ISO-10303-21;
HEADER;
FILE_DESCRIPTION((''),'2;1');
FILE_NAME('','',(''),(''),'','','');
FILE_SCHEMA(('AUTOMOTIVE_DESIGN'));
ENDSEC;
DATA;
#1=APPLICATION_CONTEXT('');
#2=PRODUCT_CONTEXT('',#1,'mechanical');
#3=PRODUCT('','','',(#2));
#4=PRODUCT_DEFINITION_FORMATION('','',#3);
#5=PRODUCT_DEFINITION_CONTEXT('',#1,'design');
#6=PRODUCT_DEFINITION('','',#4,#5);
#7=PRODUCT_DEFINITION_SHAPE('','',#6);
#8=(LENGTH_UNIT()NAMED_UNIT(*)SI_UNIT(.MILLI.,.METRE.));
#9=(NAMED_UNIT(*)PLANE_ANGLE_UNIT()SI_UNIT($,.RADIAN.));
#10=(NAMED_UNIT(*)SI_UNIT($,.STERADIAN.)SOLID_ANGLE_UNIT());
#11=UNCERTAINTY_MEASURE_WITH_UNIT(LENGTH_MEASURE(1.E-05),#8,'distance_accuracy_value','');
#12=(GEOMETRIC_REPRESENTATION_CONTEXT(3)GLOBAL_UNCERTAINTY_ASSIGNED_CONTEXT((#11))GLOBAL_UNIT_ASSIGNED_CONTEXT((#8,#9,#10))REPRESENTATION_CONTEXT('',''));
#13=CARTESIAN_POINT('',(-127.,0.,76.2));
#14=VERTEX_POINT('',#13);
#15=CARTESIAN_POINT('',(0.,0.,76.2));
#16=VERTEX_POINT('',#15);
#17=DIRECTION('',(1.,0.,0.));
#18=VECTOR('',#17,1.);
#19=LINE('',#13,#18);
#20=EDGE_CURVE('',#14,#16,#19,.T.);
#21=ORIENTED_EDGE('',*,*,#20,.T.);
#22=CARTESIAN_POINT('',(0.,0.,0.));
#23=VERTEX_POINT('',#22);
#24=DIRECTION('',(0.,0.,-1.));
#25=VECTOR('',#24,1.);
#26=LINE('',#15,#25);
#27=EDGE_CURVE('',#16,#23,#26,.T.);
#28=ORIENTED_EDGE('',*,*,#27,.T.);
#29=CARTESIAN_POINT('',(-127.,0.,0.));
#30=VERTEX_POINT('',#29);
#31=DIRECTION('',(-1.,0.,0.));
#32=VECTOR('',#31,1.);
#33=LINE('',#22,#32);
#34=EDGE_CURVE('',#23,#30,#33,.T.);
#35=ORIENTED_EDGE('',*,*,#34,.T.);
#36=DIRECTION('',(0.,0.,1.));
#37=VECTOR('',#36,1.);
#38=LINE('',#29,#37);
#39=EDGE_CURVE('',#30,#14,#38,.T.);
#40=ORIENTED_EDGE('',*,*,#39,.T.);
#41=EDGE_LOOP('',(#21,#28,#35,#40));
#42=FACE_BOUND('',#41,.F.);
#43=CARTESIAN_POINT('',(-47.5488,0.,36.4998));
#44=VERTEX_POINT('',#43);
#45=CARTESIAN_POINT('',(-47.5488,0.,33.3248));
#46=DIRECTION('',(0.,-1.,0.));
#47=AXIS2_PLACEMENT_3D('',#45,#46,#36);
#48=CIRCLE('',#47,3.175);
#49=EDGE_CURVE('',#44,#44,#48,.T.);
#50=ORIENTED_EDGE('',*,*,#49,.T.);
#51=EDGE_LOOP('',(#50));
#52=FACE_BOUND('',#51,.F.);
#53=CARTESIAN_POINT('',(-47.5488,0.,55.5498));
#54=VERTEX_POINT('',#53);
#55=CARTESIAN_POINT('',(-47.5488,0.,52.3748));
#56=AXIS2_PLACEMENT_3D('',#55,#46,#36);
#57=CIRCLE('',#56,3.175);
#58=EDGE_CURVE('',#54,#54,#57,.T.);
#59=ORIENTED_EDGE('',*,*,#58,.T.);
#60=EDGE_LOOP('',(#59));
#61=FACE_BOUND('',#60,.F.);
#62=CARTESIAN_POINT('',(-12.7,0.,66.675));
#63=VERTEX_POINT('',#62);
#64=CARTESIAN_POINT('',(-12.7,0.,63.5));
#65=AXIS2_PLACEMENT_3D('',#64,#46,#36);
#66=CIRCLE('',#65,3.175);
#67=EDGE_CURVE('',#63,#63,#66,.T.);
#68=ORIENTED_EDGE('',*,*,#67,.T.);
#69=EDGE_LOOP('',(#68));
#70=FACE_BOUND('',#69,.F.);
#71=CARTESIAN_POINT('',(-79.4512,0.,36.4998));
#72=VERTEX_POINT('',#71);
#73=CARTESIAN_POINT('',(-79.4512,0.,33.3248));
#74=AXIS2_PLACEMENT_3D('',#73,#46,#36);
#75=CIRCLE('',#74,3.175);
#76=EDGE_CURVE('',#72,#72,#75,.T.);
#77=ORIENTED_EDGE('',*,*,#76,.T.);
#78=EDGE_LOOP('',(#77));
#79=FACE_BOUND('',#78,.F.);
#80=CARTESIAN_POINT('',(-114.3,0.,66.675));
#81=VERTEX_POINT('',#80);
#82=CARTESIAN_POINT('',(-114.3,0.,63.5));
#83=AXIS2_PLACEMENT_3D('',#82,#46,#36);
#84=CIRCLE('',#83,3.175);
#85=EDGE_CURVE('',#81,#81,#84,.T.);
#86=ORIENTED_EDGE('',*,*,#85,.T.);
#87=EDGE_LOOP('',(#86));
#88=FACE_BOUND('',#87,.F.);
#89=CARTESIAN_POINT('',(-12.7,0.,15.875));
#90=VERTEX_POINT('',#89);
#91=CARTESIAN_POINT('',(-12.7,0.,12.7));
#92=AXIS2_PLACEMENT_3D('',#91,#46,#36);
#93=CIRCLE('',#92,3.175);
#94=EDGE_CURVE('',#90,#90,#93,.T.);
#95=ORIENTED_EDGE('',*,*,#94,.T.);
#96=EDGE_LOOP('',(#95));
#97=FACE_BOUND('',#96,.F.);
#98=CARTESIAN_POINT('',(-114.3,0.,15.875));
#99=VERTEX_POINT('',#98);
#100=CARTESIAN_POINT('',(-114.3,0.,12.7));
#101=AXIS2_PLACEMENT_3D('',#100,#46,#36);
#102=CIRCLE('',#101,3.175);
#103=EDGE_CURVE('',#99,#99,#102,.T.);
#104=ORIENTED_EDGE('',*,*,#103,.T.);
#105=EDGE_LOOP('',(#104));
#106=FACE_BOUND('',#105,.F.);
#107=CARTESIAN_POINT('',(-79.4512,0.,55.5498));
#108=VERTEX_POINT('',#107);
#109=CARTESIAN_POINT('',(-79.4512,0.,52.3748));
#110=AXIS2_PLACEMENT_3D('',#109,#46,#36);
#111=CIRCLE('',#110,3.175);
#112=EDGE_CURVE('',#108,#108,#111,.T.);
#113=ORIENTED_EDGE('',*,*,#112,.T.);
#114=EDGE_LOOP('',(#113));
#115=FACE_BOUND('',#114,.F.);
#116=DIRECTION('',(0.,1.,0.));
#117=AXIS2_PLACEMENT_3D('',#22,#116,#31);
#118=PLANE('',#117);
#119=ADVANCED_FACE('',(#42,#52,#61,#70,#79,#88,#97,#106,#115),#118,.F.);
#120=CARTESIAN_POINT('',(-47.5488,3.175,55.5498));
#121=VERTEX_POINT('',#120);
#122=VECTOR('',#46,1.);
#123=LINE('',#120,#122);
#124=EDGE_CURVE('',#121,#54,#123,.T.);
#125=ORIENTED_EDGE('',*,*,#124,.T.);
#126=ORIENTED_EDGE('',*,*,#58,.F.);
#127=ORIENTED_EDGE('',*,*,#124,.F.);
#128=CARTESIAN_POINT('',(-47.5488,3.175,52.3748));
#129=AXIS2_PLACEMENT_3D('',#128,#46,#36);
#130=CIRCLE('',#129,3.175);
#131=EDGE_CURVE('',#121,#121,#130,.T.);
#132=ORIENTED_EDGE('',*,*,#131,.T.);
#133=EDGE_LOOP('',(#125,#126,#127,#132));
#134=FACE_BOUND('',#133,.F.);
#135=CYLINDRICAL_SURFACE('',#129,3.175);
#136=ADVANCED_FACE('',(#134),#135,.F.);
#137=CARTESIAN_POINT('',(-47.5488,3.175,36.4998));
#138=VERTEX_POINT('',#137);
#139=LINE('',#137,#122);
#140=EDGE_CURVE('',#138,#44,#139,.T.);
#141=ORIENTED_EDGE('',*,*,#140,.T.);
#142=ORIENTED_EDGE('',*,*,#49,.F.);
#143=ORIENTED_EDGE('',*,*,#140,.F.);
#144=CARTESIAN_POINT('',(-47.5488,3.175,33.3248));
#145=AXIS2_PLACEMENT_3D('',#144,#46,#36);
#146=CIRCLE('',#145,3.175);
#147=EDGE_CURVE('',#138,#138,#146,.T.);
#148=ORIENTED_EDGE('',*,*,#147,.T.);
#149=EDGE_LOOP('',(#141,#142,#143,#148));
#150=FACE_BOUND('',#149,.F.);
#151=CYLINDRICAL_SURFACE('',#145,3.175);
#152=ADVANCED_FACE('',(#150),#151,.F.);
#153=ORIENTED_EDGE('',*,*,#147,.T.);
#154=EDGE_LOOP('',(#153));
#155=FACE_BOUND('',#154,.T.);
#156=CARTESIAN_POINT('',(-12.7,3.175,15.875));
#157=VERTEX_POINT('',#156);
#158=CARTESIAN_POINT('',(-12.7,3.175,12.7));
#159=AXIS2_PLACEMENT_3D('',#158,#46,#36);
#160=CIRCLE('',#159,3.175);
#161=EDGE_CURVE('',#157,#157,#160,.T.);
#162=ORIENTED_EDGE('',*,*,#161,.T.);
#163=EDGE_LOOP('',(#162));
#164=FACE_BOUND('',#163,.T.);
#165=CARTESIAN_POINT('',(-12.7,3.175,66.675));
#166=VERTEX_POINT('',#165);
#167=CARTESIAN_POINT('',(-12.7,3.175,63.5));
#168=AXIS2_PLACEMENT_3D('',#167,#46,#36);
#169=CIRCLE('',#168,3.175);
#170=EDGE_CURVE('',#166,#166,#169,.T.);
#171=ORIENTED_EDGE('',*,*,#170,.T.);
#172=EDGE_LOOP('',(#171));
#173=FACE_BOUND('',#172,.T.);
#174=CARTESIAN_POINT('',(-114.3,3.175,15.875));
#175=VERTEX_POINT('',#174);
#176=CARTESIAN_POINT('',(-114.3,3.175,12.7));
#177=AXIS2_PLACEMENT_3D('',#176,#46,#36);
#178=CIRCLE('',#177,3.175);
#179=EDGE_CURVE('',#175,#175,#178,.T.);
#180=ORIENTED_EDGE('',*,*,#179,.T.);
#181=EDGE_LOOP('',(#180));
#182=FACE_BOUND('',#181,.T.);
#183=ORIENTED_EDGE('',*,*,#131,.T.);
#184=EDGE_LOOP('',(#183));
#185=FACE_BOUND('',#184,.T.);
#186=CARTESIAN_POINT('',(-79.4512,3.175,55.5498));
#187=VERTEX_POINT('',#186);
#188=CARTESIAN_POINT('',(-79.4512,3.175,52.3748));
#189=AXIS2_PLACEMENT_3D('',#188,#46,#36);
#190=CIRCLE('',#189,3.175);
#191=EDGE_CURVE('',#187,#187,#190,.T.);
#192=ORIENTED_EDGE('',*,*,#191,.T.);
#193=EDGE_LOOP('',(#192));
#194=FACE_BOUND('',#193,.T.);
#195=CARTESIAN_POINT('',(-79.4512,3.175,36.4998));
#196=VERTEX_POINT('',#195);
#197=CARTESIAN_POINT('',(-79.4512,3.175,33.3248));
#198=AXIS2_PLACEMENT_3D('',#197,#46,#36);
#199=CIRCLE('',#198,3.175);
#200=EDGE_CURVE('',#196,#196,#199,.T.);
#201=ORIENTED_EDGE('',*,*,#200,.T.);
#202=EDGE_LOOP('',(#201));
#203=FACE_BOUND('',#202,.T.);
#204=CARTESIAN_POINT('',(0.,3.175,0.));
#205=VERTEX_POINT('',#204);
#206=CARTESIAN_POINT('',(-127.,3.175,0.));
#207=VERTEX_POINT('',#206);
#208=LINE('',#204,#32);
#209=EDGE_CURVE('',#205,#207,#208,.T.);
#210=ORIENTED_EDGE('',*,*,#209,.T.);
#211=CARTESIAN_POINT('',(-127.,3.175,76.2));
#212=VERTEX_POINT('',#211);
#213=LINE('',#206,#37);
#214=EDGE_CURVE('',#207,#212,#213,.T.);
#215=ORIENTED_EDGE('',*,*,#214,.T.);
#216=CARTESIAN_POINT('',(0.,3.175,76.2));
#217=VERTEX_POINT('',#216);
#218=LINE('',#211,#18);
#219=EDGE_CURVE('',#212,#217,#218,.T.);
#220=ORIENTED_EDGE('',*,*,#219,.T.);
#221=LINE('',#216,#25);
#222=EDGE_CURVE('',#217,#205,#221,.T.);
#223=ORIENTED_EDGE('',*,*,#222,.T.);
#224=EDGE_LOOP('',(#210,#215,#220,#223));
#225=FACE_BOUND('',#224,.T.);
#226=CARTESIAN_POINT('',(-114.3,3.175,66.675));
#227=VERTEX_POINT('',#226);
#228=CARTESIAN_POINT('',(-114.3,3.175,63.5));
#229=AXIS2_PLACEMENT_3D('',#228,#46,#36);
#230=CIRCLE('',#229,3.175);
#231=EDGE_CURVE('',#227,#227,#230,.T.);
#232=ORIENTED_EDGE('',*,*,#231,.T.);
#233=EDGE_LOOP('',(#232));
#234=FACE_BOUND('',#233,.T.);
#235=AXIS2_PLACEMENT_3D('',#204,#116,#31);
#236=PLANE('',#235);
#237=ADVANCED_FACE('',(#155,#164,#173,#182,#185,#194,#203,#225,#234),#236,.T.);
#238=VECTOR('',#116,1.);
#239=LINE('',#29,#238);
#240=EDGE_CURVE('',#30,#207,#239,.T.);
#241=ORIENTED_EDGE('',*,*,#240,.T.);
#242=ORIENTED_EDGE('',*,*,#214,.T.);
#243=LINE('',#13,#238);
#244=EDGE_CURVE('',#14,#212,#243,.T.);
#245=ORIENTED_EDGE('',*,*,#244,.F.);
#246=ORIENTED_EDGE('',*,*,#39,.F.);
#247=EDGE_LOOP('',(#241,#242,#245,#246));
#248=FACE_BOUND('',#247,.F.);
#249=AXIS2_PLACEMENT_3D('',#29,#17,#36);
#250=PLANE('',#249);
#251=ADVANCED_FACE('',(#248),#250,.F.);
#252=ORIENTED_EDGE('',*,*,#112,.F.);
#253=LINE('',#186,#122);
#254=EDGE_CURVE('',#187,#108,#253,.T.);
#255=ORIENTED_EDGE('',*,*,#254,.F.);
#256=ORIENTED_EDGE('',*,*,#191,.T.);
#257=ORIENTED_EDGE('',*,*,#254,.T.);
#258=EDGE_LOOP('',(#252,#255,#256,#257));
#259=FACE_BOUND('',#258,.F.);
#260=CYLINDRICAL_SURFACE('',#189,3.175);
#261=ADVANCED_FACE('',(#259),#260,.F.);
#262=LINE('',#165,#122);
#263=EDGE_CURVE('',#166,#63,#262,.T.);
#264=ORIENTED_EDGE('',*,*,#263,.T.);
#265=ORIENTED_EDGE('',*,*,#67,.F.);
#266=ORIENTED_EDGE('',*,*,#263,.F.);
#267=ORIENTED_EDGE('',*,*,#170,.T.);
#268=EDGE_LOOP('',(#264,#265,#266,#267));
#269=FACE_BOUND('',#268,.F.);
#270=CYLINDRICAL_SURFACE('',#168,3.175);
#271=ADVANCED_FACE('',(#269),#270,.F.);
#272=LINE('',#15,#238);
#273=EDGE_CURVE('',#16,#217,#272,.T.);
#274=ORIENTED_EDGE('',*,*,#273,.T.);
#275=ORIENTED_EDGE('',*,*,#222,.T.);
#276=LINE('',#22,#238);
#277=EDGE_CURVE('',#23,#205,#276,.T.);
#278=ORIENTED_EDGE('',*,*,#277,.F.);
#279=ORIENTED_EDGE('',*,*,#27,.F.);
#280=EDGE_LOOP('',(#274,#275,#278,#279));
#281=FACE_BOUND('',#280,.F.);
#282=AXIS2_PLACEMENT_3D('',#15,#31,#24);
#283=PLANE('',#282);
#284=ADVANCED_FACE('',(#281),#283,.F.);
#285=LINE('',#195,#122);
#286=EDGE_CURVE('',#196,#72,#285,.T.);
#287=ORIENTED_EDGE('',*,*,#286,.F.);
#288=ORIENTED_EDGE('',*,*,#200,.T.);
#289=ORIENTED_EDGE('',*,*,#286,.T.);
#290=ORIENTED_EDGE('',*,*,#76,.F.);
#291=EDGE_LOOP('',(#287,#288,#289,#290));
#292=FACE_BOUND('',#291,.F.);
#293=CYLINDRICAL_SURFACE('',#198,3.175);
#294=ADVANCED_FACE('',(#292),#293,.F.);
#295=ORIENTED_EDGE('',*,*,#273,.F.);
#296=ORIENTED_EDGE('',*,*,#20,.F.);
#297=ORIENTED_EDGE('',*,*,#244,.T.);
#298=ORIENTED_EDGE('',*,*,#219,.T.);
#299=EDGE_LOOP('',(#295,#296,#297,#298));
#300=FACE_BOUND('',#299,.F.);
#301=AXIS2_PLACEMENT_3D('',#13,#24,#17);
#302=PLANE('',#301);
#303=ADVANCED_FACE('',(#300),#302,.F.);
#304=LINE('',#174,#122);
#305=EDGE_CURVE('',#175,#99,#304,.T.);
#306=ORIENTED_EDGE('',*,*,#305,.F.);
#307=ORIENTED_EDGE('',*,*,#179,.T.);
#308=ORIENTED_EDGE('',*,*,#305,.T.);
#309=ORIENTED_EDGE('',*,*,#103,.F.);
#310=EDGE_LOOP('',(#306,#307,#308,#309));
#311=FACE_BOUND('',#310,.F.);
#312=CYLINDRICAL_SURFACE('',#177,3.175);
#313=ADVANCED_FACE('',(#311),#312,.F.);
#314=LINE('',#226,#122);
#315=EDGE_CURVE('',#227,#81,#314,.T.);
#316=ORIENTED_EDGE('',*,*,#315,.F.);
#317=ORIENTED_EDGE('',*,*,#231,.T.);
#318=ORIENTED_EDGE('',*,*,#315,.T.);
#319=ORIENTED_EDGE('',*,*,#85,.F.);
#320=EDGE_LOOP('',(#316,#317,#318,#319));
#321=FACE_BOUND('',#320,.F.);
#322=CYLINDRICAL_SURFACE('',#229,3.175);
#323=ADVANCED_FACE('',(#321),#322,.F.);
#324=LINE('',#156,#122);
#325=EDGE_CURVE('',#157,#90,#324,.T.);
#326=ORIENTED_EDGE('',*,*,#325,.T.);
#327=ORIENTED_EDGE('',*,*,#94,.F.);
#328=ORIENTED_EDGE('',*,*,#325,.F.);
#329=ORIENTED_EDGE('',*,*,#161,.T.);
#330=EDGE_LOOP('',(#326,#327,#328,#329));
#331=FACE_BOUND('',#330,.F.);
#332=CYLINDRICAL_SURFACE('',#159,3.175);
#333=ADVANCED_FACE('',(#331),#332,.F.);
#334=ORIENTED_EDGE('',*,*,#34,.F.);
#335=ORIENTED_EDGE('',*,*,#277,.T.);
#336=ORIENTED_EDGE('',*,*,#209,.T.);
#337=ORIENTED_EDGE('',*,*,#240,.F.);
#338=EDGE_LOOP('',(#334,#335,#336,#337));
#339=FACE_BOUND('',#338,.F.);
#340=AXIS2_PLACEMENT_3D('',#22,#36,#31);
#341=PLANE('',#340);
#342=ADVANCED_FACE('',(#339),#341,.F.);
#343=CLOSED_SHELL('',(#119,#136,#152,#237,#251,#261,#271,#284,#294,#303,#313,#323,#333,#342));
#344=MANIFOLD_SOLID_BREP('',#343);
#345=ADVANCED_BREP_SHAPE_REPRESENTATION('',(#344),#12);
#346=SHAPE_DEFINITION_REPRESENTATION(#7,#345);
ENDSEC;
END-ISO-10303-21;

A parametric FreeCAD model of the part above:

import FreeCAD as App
import Part
import Sketcher
from FreeCAD import Vector
Q = App.Units.Quantity

doc = App.newDocument("Part")
body = doc.addObject("PartDesign::Body", "Body")

# Sketch on XZ plane
sketch1 = body.newObject("Sketcher::SketchObject", "Sketch")
sketch1.AttachmentSupport = (doc.getObject("XZ_Plane"), [""])
sketch1.MapMode = "FlatFace"
sketch1.addGeometry([
    Part.LineSegment(Vector(0, 76, 0), Vector(0, 0, 0)),
    Part.LineSegment(Vector(0, 0, 0), Vector(-127, 0, 0)),
    Part.LineSegment(Vector(-127, 0, 0), Vector(-127, 76, 0)),
    Part.LineSegment(Vector(-127, 76, 0), Vector(0, 76, 0)),
], False)
sketch1.addConstraint([
    Sketcher.Constraint("Coincident", 0, 2, 1, 1),
    Sketcher.Constraint("Coincident", 1, 2, 2, 1),
    Sketcher.Constraint("Coincident", 2, 2, 3, 1),
    Sketcher.Constraint("Coincident", 3, 2, 0, 1),
    Sketcher.Constraint("Vertical", 0),
    Sketcher.Constraint("Horizontal", 1),
    Sketcher.Constraint("Vertical", 2),
    Sketcher.Constraint("Horizontal", 3),
    Sketcher.Constraint("Coincident", 0, 2, -1, 1),
    Sketcher.Constraint("DistanceX", 1, 2, 1, 1, Q("5 in")),
    Sketcher.Constraint("DistanceY", 0, 2, 0, 1, Q("3 in")),
])
pad1 = body.newObject("PartDesign::Pad", "Pad")
pad1.Profile = sketch1
pad1.Length = Q("0.125 in")
pad1.Reversed = True

# Sketch on XZ plane
sketch2 = body.newObject("Sketcher::SketchObject", "Sketch001")
sketch2.AttachmentSupport = (doc.getObject("XZ_Plane"), [""])
sketch2.MapMode = "FlatFace"
sketch2.AttachmentOffset = App.Placement(Vector(0, 0, -0.125 * 25.4), App.Rotation())
sketch2.addGeometry([
    Part.Circle(Vector(-114.3, 12.7, 0), Vector(0, 0, 1), 3.2),
    Part.Circle(Vector(-114.3, 63.5, 0), Vector(0, 0, 1), 3.2),
    Part.Circle(Vector(-12.7, 63.5, 0), Vector(0, 0, 1), 3.2),
    Part.Circle(Vector(-12.7, 12.7, 0), Vector(0, 0, 1), 3.2),
], False)
sketch2.addConstraint([
    Sketcher.Constraint("Equal", 0, 1),
    Sketcher.Constraint("Equal", 1, 2),
    Sketcher.Constraint("Equal", 2, 3),
    Sketcher.Constraint("Horizontal", 1, 3, 2, 3),
    Sketcher.Constraint("Horizontal", 0, 3, 3, 3),
    Sketcher.Constraint("Vertical", 0, 3, 1, 3),
    Sketcher.Constraint("Vertical", 2, 3, 3, 3),
    Sketcher.Constraint("Diameter", 0, Q("0.25 in")),
    Sketcher.Constraint("DistanceY", 0, 3, 1, 3, Q("2 in")),
    Sketcher.Constraint("DistanceX", 1, 3, 2, 3, Q("4 in")),
    Sketcher.Constraint("DistanceX", 0, 3, -1, 1, Q("4.5 in")),
    Sketcher.Constraint("DistanceY", -1, 1, 0, 3, Q("0.5 in")),
])
doc.recompute()
hole = body.newObject("PartDesign::Hole", "Hole")
hole.Profile = sketch2
hole.ThreadType = "None"
hole.Diameter = Q("0.25 in")
hole.DepthType = "ThroughAll"
hole.Reversed = True

# Sketch on XZ plane
sketch3 = body.newObject("Sketcher::SketchObject", "Sketch002")
sketch3.AttachmentSupport = (doc.getObject("XZ_Plane"), [""])
sketch3.MapMode = "FlatFace"
sketch3.AttachmentOffset = App.Placement(Vector(0, 0, -0.125 * 25.4), App.Rotation())
sketch3.addGeometry([
    Part.Circle(Vector(-79.5, 52.4, 0), Vector(0, 0, 1), 3.2),
    Part.Circle(Vector(-47.5, 52.4, 0), Vector(0, 0, 1), 3.2),
    Part.Circle(Vector(-79.5, 33.3, 0), Vector(0, 0, 1), 3.2),
    Part.Circle(Vector(-47.5, 33.3, 0), Vector(0, 0, 1), 3.2),
], False)
sketch3.addConstraint([
    Sketcher.Constraint("Equal", 0, 1),
    Sketcher.Constraint("Equal", 1, 2),
    Sketcher.Constraint("Equal", 2, 3),
    Sketcher.Constraint("Horizontal", 0, 3, 1, 3),
    Sketcher.Constraint("Horizontal", 2, 3, 3, 3),
    Sketcher.Constraint("Vertical", 0, 3, 2, 3),
    Sketcher.Constraint("Vertical", 1, 3, 3, 3),
    Sketcher.Constraint("Diameter", 0, Q("0.25 in")),
    Sketcher.Constraint("DistanceY", 2, 3, 0, 3, Q("0.75 in")),
    Sketcher.Constraint("DistanceX", 0, 3, -1, 1, Q("3.128 in")),
    Sketcher.Constraint("DistanceY", -1, 1, 0, 3, Q("2.062 in")),
    Sketcher.Constraint("DistanceX", 1, 3, -1, 1, Q("1.872 in")),
])
doc.recompute()
hole2 = body.newObject("PartDesign::Hole", "Hole001")
hole2.Profile = sketch3
hole2.ThreadType = "None"
hole2.Diameter = Q("0.25 in")
hole2.DepthType = "ThroughAll"
hole2.Reversed = True

doc.recompute()
